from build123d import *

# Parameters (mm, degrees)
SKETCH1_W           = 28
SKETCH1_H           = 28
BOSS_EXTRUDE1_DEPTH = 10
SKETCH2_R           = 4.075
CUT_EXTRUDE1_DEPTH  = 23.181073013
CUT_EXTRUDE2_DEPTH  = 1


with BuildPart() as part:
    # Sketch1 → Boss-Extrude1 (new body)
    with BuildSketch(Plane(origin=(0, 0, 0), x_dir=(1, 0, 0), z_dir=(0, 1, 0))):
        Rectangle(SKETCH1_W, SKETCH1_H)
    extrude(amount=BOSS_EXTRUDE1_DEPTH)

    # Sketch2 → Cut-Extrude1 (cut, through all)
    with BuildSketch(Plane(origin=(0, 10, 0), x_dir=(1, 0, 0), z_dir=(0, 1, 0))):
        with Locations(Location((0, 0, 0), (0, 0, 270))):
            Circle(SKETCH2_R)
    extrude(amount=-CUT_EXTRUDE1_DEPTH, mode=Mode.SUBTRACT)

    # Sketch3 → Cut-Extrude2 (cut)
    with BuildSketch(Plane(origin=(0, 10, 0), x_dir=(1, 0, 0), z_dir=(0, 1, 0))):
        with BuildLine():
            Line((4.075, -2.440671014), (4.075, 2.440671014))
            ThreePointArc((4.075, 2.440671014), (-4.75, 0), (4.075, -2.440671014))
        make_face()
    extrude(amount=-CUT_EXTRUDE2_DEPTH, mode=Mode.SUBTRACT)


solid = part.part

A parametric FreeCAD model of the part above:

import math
import FreeCAD as App
import Part
import Sketcher
Q = App.Units.Quantity

doc = App.newDocument("Part")
params = doc.addObject("Spreadsheet::Sheet", "Params")
for row, (alias, value) in enumerate([
    ("sketch1_width", "28 mm"),
    ("pad1_length", "10 mm"),
    ("sketch2_diameter", "8.15 mm"),
    ("sketch3_radius", "4.75 mm"),
    ("pocket2_length", "1 mm"),
], start=1):
    params.set(f"A{row}", alias)
    params.set(f"B{row}", "=" + value)
    params.setAlias(f"B{row}", alias)

body = doc.addObject("PartDesign::Body", "Body")

sketch1 = doc.addObject("Sketcher::SketchObject", "Sketch")
body.addObject(sketch1)
sketch1.AttachmentSupport = (doc.XZ_Plane, [""])
sketch1.MapMode = "FlatFace"
sketch1.addGeometry([
    Part.LineSegment(App.Vector(-14, -14, 0), App.Vector(-14, 14, 0)),
    Part.LineSegment(App.Vector(-14, 14, 0), App.Vector(14, 14, 0)),
    Part.LineSegment(App.Vector(14, 14, 0), App.Vector(14, -14, 0)),
    Part.LineSegment(App.Vector(14, -14, 0), App.Vector(-14, -14, 0)),
], False)
sketch1.addConstraint([
    Sketcher.Constraint("Coincident", 0, 2, 1, 1),
    Sketcher.Constraint("Coincident", 1, 2, 2, 1),
    Sketcher.Constraint("Coincident", 2, 2, 3, 1),
    Sketcher.Constraint("Coincident", 3, 2, 0, 1),
    Sketcher.Constraint("Vertical", 0),
    Sketcher.Constraint("Horizontal", 1),
    Sketcher.Constraint("Vertical", 2),
    Sketcher.Constraint("Horizontal", 3),
    Sketcher.Constraint("Symmetric", 0, 2, 2, 2, -1, 1),
    Sketcher.Constraint("Equal", 3, 0),
    Sketcher.Constraint("DistanceX", 1, 1, 1, 2, Q("28 mm")),
])
sketch1.setExpression("Constraints[10]", "Params.sketch1_width")
pad1 = doc.addObject("PartDesign::Pad", "Pad")
body.addObject(pad1)
pad1.Profile = sketch1
pad1.setExpression("Length", "Params.pad1_length")
pad1.Reversed = True

sketch2 = doc.addObject("Sketcher::SketchObject", "Sketch001")
body.addObject(sketch2)
sketch2.AttachmentSupport = (doc.XZ_Plane, [""])
sketch2.MapMode = "FlatFace"
sketch2.AttachmentOffset = App.Placement(App.Vector(0, 0, -10), App.Rotation())
sketch2.addGeometry(Part.Circle(App.Vector(0, 0, 0), App.Vector(0, 0, 1), 4.075), False)
sketch2.addConstraint([
    Sketcher.Constraint("Coincident", 0, 3, -1, 1),
    Sketcher.Constraint("Diameter", 0, Q("8.15 mm")),
])
sketch2.setExpression("Constraints[1]", "Params.sketch2_diameter")
pocket1 = doc.addObject("PartDesign::Pocket", "Pocket")
body.addObject(pocket1)
pocket1.Profile = sketch2
pocket1.Type = "ThroughAll"
pocket1.Reversed = True

sketch3 = doc.addObject("Sketcher::SketchObject", "Sketch002")
body.addObject(sketch3)
sketch3.AttachmentSupport = (doc.XZ_Plane, [""])
sketch3.MapMode = "FlatFace"
sketch3.AttachmentOffset = App.Placement(App.Vector(0, 0, -10), App.Rotation())
sketch3.addGeometry([
    Part.LineSegment(App.Vector(4.075, 2.440671, 0), App.Vector(4.075, -2.440671, 0)),
    Part.ArcOfCircle(Part.Circle(App.Vector(0, 0, 0), App.Vector(0, 0, 1), 4.75), math.radians(30.91898), math.radians(329.08102)),
], False)
sketch3.addConstraint([
    Sketcher.Constraint("Coincident", 0, 1, 1, 1),
    Sketcher.Constraint("Coincident", 1, 2, 0, 2),
    Sketcher.Constraint("Vertical", 0),
    Sketcher.Constraint("Coincident", 1, 3, -1, 1),
    Sketcher.Constraint("Radius", 1, Q("4.75 mm")),
    Sketcher.Constraint("DistanceX", -1, 1, 0, 1, Q("4.075 mm")),
])
sketch3.setExpression("Constraints[4]", "Params.sketch3_radius")
pocket2 = doc.addObject("PartDesign::Pocket", "Pocket001")
body.addObject(pocket2)
pocket2.Profile = sketch3
pocket2.setExpression("Length", "Params.pocket2_length")
pocket2.Reversed = True

doc.recompute()
